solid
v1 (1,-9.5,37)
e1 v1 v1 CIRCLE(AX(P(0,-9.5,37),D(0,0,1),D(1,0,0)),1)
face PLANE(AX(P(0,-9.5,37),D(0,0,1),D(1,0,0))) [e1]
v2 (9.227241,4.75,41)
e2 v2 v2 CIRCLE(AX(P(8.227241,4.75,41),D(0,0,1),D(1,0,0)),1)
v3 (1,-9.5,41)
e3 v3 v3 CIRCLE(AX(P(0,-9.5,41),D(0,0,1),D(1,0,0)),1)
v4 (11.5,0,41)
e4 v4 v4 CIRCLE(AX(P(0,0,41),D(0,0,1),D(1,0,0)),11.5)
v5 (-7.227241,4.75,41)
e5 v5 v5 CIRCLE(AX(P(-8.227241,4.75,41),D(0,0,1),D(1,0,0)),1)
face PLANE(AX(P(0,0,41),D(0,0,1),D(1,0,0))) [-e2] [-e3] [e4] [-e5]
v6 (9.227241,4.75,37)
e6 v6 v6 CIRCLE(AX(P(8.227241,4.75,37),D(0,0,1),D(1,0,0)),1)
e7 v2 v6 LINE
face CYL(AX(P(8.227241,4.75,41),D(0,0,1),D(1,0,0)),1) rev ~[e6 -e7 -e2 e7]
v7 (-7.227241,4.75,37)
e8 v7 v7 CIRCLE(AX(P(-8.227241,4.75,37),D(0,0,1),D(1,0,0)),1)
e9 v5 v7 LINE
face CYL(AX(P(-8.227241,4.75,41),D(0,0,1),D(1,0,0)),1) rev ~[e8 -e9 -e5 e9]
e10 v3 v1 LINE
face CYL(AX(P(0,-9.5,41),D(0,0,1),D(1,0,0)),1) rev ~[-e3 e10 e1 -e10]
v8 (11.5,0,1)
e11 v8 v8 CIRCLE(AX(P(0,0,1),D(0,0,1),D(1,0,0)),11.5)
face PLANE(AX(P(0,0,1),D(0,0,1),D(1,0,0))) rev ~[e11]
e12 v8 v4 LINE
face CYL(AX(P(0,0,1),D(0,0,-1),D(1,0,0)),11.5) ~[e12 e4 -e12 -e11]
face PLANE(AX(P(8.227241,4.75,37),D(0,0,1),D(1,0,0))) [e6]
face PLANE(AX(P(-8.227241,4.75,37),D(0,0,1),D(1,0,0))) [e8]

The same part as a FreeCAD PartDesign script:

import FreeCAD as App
import Part
import Sketcher
Q = App.Units.Quantity

doc = App.newDocument("Part")
body = doc.addObject("PartDesign::Body", "Body")

# Sketch on XY plane
sketch1 = body.newObject("Sketcher::SketchObject", "Sketch")
sketch1.AttachmentSupport = (doc.getObject("XY_Plane"), [""])
sketch1.MapMode = "FlatFace"
sketch1.AttachmentOffset = App.Placement(App.Vector(0, 0, 41), App.Rotation())
sketch1.addGeometry(Part.Circle(App.Vector(0, 0, 0), App.Vector(0, 0, 1), 23), False)
sketch1.addConstraint(Sketcher.Constraint("Coincident", 0, 3, -1, 1))
sketch1.addConstraint(Sketcher.Constraint("Diameter", 0, Q("46.6923 mm")))
pad1 = body.newObject("PartDesign::Pad", "Pad")
pad1.Profile = sketch1
pad1.Length = 23
body2 = doc.addObject("PartDesign::Body", "Body001")

# Sketch on XY plane
sketch2 = body2.newObject("Sketcher::SketchObject", "Sketch001")
sketch2.AttachmentSupport = (doc.getObject("XY_Plane001"), [""])
sketch2.MapMode = "FlatFace"
sketch2.AttachmentOffset = App.Placement(App.Vector(0, 0, 42), App.Rotation())
sketch2.addGeometry(Part.Circle(App.Vector(0, 0, 0), App.Vector(0, 0, 1), 3), False)
sketch2.addConstraint(Sketcher.Constraint("Coincident", 0, 3, -1, 1))
sketch2.addConstraint(Sketcher.Constraint("Diameter", 0, Q("6 mm")))
pad2 = body2.newObject("PartDesign::Pad", "Pad001")
pad2.Profile = sketch2
pad2.Length = 15
body3 = doc.addObject("PartDesign::Body", "Body002")

# Sketch on XY plane
sketch3 = body3.newObject("Sketcher::SketchObject", "Sketch002")
sketch3.AttachmentSupport = (doc.getObject("XY_Plane002"), [""])
sketch3.MapMode = "FlatFace"
sketch3.AttachmentOffset = App.Placement(App.Vector(0, 0, 41), App.Rotation())
sketch3.addGeometry(Part.Circle(App.Vector(0, 0, 0), App.Vector(0, 0, 1), 8), False)
sketch3.addConstraint(Sketcher.Constraint("Coincident", 0, 3, -1, 1))
sketch3.addConstraint(Sketcher.Constraint("Diameter", 0, Q("15 mm")))
pad3 = body3.newObject("PartDesign::Pad", "Pad002")
pad3.Profile = sketch3
pad3.Length = 1
body4 = doc.addObject("PartDesign::Body", "Body003")
body4.AllowCompound = True

# Sketch on XY plane
sketch4 = body4.newObject("Sketcher::SketchObject", "Sketch003")
sketch4.AttachmentSupport = (doc.getObject("XY_Plane003"), [""])
sketch4.MapMode = "FlatFace"
sketch4.AttachmentOffset = App.Placement(App.Vector(0, 0, 1), App.Rotation())
sketch4.addGeometry(Part.Circle(App.Vector(0, 0, 0), App.Vector(0, 0, 1), 12), False)
sketch4.addConstraint(Sketcher.Constraint("Coincident", 0, 3, -1, 1))
sketch4.addConstraint(Sketcher.Constraint("Diameter", 0, Q("23 mm")))
pad4 = body4.newObject("PartDesign::Pad", "Pad003")
pad4.Profile = sketch4
pad4.Length = 40
doc.recompute()

boolean = body4.newObject("PartDesign::Boolean", "Boolean")
boolean.Type = "Fuse"
boolean.addObjects([body2])
doc.recompute()

boolean2 = body4.newObject("PartDesign::Boolean", "Boolean001")
boolean2.Type = "Fuse"
boolean2.addObjects([body3])

# Sketch on XY plane
sketch5 = body4.newObject("Sketcher::SketchObject", "Sketch004")
sketch5.AttachmentSupport = (doc.getObject("XY_Plane003"), [""])
sketch5.MapMode = "FlatFace"
sketch5.AttachmentOffset = App.Placement(App.Vector(0, 0, 41), App.Rotation())
sketch5.addGeometry(Part.Circle(App.Vector(8.2, 4.8, 0), App.Vector(0, 0, 1), 1), False)
sketch5.addGeometry(Part.Circle(App.Vector(-8.2, 4.8, 0), App.Vector(0, 0, 1), 1), False)
sketch5.addGeometry(Part.Circle(App.Vector(0, -9.5, 0), App.Vector(0, 0, 1), 1), False)
sketch5.addConstraint(Sketcher.Constraint("Equal", 0, 1))
sketch5.addConstraint(Sketcher.Constraint("Equal", 1, 2))
sketch5.addConstraint(Sketcher.Constraint("Symmetric", 0, 3, 1, 3, -2))
sketch5.addConstraint(Sketcher.Constraint("PointOnObject", 2, 3, -2))
sketch5.addConstraint(Sketcher.Constraint("Diameter", 0, Q("2 mm")))
sketch5.addConstraint(Sketcher.Constraint("DistanceY", 2, 3, -1, 1, Q("9.5 mm")))
sketch5.addConstraint(Sketcher.Constraint("DistanceY", -1, 1, 0, 3, Q("4.75 mm")))
sketch5.addConstraint(Sketcher.Constraint("DistanceX", -1, 1, 0, 3, Q("8.227241 mm")))
pocket1 = body4.newObject("PartDesign::Pocket", "Pocket")
pocket1.Profile = sketch5
pocket1.Length = 4
doc.recompute()

boolean3 = body4.newObject("PartDesign::Boolean", "Boolean002")
boolean3.Type = "Cut"
boolean3.addObjects([body])

doc.recompute()
